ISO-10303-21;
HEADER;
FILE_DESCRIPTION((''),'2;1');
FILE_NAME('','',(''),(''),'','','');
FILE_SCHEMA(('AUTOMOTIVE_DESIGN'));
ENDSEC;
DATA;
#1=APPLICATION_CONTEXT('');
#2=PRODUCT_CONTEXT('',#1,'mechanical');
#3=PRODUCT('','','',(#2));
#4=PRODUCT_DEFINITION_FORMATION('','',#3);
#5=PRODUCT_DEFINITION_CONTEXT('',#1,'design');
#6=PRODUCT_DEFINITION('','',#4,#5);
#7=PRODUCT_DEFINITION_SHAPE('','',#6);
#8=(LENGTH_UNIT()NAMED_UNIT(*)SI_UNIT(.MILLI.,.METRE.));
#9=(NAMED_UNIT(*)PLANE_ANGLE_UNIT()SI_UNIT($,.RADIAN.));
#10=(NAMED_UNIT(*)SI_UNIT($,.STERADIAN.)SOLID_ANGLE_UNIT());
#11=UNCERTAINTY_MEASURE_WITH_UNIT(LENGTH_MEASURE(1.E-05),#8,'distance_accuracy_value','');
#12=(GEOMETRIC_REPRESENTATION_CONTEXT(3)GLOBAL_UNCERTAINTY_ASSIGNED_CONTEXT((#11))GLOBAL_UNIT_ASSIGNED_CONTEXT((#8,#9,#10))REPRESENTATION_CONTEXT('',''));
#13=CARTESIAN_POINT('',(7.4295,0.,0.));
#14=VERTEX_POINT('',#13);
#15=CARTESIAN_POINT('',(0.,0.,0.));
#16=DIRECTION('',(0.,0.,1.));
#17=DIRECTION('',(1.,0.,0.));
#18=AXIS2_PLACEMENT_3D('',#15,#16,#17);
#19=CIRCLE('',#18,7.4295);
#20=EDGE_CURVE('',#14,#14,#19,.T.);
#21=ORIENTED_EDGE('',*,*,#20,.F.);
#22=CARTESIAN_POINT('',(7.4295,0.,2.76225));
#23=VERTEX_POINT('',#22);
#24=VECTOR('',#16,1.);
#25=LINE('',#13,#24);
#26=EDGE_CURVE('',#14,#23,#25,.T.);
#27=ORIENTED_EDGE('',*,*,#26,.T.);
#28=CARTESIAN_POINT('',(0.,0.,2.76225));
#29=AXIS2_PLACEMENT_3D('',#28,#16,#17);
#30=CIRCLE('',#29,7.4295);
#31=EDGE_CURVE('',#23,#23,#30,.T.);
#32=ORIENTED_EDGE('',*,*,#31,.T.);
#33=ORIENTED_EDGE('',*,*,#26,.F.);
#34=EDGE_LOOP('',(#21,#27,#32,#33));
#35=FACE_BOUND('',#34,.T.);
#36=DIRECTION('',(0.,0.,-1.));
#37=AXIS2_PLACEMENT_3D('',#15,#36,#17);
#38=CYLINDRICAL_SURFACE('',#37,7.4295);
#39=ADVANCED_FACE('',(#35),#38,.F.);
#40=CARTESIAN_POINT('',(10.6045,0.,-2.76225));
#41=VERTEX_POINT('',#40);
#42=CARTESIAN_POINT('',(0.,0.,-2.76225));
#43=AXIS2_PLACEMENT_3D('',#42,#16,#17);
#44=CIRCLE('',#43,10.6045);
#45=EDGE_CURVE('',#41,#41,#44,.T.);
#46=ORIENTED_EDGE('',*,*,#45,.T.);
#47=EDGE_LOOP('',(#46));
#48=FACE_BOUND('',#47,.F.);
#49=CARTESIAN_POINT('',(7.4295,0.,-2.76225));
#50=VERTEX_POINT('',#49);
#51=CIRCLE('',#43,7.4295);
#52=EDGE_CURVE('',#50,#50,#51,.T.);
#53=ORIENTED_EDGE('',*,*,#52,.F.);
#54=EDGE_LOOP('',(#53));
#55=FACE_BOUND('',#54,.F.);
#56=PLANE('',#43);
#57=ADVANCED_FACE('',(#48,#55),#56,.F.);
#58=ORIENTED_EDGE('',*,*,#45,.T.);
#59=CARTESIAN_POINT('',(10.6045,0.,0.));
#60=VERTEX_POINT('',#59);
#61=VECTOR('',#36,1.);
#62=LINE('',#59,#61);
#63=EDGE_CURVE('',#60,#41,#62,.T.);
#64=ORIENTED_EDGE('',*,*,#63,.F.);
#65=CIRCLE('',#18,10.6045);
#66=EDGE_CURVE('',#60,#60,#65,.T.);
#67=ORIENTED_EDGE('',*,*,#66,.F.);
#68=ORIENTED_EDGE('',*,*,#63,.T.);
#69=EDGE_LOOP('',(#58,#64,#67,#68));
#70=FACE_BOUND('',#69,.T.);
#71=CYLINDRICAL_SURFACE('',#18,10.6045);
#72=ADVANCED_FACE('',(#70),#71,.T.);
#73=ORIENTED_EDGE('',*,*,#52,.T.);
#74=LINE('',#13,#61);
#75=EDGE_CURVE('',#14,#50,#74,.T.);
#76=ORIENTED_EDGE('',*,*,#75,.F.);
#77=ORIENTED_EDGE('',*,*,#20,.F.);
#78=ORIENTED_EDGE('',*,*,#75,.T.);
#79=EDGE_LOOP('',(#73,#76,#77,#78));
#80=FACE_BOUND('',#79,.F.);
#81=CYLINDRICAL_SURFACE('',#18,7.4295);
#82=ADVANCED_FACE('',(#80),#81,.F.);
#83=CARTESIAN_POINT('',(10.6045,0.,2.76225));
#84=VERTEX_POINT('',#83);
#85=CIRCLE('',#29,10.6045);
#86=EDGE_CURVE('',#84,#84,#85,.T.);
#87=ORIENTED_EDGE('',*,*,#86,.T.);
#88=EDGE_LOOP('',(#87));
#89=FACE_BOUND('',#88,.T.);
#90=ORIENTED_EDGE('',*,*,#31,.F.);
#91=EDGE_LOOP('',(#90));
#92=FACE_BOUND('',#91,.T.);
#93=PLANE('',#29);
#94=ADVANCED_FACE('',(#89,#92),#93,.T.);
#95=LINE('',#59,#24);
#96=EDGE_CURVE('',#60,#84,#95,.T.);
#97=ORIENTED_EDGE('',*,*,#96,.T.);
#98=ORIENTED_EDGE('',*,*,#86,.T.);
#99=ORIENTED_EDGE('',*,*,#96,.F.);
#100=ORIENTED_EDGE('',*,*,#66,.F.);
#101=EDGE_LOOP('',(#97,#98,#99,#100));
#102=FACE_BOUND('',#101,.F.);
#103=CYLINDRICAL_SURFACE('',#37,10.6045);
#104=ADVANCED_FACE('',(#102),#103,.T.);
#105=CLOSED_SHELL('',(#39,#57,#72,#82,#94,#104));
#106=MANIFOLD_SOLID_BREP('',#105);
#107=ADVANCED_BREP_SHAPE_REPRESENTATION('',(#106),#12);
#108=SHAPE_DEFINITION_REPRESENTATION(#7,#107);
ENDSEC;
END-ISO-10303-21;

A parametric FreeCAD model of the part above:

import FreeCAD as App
import Part
import Sketcher

V = App.Vector
Q = App.Units.Quantity

doc = App.newDocument("Part")
body = doc.addObject("PartDesign::Body", "Body")

# Sketch on XY plane
sketch1 = body.newObject("Sketcher::SketchObject", "Sketch")
sketch1.AttachmentSupport = (doc.getObject("XY_Plane"), [""])
sketch1.MapMode = "FlatFace"
sketch1.addGeometry([
    Part.Circle(V(0, 0, 0), V(0, 0, 1), 10.6045),
    Part.Circle(V(0, 0, 0), V(0, 0, 1), 7.4295),
], False)
sketch1.addConstraint([
    Sketcher.Constraint("Coincident", 0, 3, -1, 1),
    Sketcher.Constraint("Coincident", 1, 3, -1, 1),
    Sketcher.Constraint("Diameter", 1, Q("0.585 in")),
    Sketcher.Constraint("Diameter", 0, Q("0.835 in")),
])
pad1 = body.newObject("PartDesign::Pad", "Pad")
pad1.Profile = sketch1
pad1.Length = Q("0.2175 in")
pad1.Midplane = True

doc.recompute()
